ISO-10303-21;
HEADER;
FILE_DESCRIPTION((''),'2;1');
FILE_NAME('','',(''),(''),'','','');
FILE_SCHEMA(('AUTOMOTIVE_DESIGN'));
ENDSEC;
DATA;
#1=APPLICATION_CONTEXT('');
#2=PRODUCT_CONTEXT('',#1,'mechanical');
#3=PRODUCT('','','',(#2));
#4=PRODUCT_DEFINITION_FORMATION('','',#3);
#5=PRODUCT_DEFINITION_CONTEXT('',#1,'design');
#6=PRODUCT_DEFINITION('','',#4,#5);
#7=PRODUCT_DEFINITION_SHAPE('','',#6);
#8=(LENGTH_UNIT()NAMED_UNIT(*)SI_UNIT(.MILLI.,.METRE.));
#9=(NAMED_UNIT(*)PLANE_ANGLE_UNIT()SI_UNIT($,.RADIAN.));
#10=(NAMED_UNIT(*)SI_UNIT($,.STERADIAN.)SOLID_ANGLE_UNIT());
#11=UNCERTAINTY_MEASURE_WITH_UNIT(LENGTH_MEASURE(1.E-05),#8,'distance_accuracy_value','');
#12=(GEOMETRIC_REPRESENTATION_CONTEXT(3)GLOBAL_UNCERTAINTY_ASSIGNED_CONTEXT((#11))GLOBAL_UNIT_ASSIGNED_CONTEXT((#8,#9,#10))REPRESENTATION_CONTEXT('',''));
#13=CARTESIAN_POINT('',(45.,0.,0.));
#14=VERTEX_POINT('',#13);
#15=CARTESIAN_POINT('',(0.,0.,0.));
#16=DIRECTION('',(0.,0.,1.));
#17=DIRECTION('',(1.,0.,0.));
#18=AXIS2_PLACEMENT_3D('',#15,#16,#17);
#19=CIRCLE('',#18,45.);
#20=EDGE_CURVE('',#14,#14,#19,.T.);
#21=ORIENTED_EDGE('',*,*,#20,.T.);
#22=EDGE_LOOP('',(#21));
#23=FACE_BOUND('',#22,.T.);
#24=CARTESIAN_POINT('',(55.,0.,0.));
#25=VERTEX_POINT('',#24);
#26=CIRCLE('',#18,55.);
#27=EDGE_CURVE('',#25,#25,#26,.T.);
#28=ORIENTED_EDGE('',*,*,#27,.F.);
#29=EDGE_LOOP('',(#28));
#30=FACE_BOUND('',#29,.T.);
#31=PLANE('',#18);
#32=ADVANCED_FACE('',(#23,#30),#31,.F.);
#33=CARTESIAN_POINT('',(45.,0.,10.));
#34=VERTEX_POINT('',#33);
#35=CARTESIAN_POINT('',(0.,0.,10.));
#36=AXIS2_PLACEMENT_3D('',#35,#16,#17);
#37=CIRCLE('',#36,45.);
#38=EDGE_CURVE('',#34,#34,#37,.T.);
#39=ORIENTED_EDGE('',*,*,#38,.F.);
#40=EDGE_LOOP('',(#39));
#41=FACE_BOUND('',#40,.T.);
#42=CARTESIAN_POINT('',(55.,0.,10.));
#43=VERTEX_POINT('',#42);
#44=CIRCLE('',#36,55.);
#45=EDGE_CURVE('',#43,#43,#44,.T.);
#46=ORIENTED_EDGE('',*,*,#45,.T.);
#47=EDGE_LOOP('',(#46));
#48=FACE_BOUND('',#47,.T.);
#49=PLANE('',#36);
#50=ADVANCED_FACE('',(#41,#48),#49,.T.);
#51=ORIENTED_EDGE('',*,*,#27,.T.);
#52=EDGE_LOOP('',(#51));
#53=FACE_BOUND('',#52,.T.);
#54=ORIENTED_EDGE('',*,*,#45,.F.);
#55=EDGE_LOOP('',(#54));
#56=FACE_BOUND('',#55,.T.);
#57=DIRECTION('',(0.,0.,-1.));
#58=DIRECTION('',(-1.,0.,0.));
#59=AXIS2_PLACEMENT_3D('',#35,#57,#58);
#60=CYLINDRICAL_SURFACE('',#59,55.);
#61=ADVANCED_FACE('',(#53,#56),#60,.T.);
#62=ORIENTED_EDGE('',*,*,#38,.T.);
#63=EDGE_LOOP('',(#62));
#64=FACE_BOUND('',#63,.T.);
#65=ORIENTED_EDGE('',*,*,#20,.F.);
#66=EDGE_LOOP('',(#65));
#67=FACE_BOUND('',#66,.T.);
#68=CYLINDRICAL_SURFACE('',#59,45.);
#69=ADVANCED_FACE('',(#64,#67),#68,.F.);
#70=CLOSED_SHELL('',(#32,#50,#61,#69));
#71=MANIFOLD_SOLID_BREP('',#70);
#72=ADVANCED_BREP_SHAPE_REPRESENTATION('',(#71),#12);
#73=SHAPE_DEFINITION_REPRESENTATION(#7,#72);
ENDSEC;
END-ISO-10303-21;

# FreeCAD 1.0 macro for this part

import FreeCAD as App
import Part
import Sketcher

V = App.Vector
Q = App.Units.Quantity

doc = App.newDocument("Part")
body = doc.addObject("PartDesign::Body", "Body")

sketch1 = body.newObject("Sketcher::SketchObject", "Sketch")
sketch1.AttachmentSupport = (doc.getObject("XY_Plane"), [""])
sketch1.MapMode = "FlatFace"
sketch1.addGeometry([
    Part.Circle(V(0, 0, 0), V(0, 0, 1), 55),
    Part.Circle(V(0, 0, 0), V(0, 0, 1), 45),
], False)
sketch1.addConstraint([
    Sketcher.Constraint("Coincident", 0, 3, -1, 1),
    Sketcher.Constraint("Coincident", 1, 3, -1, 1),
    Sketcher.Constraint("Diameter", 0, Q("110 mm")),
    Sketcher.Constraint("Diameter", 1, Q("90 mm")),
])
pad1 = body.newObject("PartDesign::Pad", "Pad")
pad1.Profile = sketch1
pad1.Length = 10

doc.recompute()
